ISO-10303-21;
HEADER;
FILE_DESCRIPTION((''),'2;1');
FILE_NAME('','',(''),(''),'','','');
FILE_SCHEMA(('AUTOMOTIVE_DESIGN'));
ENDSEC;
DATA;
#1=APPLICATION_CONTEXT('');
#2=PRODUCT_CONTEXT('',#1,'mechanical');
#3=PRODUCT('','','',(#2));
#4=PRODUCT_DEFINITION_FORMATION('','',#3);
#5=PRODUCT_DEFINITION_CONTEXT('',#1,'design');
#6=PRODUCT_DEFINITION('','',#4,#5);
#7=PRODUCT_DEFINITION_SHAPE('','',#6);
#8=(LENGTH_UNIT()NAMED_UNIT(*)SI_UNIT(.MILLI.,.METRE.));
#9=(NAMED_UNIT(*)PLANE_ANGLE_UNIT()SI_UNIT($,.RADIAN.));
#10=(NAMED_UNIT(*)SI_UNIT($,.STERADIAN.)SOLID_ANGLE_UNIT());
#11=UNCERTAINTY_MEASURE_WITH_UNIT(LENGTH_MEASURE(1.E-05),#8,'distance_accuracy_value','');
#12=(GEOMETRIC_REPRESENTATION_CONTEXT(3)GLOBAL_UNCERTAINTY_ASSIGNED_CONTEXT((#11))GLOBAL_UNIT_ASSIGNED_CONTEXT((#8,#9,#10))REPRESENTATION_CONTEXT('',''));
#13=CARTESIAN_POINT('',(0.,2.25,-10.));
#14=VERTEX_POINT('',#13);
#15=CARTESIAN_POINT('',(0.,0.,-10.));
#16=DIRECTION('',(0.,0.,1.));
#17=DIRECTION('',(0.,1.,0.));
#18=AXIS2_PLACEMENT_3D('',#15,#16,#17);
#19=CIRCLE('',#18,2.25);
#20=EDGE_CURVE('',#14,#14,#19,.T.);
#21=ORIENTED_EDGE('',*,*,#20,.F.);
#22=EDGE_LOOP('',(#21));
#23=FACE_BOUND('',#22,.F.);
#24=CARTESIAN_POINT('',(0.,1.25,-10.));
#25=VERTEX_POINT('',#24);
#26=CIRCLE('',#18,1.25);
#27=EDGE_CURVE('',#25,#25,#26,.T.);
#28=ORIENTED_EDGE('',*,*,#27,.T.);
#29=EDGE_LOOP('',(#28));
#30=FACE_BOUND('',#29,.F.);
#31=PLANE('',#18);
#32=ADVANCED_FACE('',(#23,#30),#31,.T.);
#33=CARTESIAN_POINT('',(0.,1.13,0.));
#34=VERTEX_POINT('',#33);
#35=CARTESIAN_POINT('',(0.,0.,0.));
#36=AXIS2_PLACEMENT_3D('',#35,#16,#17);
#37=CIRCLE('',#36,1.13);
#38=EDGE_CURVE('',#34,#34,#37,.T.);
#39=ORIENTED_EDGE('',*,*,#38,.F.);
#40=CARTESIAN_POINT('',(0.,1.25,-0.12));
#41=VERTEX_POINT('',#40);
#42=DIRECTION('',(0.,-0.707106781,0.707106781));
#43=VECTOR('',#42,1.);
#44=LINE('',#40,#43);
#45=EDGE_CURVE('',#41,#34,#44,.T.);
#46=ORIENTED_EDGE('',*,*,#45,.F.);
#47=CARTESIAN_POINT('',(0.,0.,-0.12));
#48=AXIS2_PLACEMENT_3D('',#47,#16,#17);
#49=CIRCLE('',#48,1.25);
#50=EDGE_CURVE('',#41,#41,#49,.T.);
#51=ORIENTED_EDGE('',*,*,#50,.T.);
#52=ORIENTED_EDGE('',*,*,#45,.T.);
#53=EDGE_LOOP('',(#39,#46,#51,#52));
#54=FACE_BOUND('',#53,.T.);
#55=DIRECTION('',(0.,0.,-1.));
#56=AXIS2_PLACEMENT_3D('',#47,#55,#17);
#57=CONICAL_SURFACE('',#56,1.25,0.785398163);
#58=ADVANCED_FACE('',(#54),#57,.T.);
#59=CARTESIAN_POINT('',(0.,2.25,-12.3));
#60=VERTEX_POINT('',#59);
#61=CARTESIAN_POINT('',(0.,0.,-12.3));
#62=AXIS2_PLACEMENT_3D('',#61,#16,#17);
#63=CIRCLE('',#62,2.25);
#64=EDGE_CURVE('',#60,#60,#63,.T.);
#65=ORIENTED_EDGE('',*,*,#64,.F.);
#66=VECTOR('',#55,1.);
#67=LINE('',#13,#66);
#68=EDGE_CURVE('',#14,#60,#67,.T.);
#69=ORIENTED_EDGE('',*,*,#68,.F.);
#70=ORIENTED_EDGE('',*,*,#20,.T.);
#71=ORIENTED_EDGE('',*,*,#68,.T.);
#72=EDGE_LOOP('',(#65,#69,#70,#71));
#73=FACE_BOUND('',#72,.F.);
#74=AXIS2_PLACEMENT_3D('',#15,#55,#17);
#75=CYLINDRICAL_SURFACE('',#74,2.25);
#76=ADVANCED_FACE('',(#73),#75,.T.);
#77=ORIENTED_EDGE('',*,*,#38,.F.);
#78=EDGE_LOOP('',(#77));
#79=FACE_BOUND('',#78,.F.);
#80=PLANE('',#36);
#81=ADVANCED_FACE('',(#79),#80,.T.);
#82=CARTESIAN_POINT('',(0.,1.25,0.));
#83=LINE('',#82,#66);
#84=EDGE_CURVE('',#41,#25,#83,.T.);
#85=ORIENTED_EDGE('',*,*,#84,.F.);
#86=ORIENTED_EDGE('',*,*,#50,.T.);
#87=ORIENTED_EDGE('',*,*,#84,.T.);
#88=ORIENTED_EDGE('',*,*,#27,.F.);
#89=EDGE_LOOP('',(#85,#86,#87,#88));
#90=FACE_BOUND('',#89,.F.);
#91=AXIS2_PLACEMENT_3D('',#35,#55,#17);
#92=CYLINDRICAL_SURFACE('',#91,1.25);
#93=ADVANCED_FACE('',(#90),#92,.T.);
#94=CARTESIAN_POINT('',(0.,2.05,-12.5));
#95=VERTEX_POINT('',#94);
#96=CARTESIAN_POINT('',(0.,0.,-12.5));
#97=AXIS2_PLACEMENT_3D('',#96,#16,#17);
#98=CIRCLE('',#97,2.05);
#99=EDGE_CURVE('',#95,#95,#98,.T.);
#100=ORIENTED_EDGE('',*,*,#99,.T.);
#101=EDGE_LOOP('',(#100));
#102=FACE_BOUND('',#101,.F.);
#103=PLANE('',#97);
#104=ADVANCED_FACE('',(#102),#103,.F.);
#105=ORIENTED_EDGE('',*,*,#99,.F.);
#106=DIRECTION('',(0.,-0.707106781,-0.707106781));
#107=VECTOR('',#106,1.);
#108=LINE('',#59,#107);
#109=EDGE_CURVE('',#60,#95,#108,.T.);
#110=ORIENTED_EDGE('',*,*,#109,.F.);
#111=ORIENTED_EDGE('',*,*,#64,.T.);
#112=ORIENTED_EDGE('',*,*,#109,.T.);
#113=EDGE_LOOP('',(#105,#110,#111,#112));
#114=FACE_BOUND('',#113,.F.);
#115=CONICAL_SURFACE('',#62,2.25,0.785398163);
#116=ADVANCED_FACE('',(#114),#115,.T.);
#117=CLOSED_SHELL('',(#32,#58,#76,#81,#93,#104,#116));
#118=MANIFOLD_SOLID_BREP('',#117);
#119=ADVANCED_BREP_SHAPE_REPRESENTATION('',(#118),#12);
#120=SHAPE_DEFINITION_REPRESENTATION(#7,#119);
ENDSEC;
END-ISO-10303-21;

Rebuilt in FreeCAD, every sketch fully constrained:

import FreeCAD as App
import Part
import Sketcher
Q = App.Units.Quantity

doc = App.newDocument("Part")
body = doc.addObject("PartDesign::Body", "Body")

sketch1 = doc.addObject("Sketcher::SketchObject", "Sketch")
body.addObject(sketch1)
sketch1.AttachmentSupport = (doc.YZ_Plane, [""])
sketch1.MapMode = "FlatFace"
sketch1.addGeometry([
    Part.LineSegment(App.Vector(1.13, 0, 0), App.Vector(0, 0, 0)),
    Part.LineSegment(App.Vector(0, 0, 0), App.Vector(0, -12.5, 0)),
    Part.LineSegment(App.Vector(0, -12.5, 0), App.Vector(2.05, -12.5, 0)),
    Part.LineSegment(App.Vector(2.05, -12.5, 0), App.Vector(2.25, -12.3, 0)),
    Part.LineSegment(App.Vector(2.25, -12.3, 0), App.Vector(2.25, -10, 0)),
    Part.LineSegment(App.Vector(2.25, -10, 0), App.Vector(1.25, -10, 0)),
    Part.LineSegment(App.Vector(1.25, -10, 0), App.Vector(1.25, -0.12, 0)),
    Part.LineSegment(App.Vector(1.25, -0.12, 0), App.Vector(1.13, 0, 0)),
], False)
sketch1.addConstraint([
    Sketcher.Constraint("Coincident", 0, 2, 1, 1),
    Sketcher.Constraint("Coincident", 1, 2, 2, 1),
    Sketcher.Constraint("Coincident", 2, 2, 3, 1),
    Sketcher.Constraint("Coincident", 3, 2, 4, 1),
    Sketcher.Constraint("Coincident", 4, 2, 5, 1),
    Sketcher.Constraint("Coincident", 5, 2, 6, 1),
    Sketcher.Constraint("Coincident", 6, 2, 7, 1),
    Sketcher.Constraint("Coincident", 7, 2, 0, 1),
    Sketcher.Constraint("Horizontal", 0),
    Sketcher.Constraint("Vertical", 1),
    Sketcher.Constraint("Horizontal", 2),
    Sketcher.Constraint("Vertical", 4),
    Sketcher.Constraint("Horizontal", 5),
    Sketcher.Constraint("Vertical", 6),
    Sketcher.Constraint("Coincident", 0, 2, -1, 1),
    Sketcher.Constraint("Perpendicular", 3, 7),
    Sketcher.Constraint("Angle", 3, Q("45 deg")),
    Sketcher.Constraint("DistanceY", 4, 2, -1, 1, 10.0),
    Sketcher.Constraint("DistanceX", 2, 2, 3, 2, 0.2),
    Sketcher.Constraint("DistanceY", 2, 2, 4, 2, 2.5),
    Sketcher.Constraint("DistanceX", 5, 2, 5, 1, 1.0),
    Sketcher.Constraint("DistanceX", -1, 1, 3, 2, 2.25),
    Sketcher.Constraint("DistanceY", 6, 2, -1, 1, 0.12),
])
revolution = doc.addObject("PartDesign::Revolution", "Revolution")
body.addObject(revolution)
revolution.Profile = sketch1
revolution.ReferenceAxis = (sketch1, ["V_Axis"])
revolution.Angle = 360

doc.recompute()
